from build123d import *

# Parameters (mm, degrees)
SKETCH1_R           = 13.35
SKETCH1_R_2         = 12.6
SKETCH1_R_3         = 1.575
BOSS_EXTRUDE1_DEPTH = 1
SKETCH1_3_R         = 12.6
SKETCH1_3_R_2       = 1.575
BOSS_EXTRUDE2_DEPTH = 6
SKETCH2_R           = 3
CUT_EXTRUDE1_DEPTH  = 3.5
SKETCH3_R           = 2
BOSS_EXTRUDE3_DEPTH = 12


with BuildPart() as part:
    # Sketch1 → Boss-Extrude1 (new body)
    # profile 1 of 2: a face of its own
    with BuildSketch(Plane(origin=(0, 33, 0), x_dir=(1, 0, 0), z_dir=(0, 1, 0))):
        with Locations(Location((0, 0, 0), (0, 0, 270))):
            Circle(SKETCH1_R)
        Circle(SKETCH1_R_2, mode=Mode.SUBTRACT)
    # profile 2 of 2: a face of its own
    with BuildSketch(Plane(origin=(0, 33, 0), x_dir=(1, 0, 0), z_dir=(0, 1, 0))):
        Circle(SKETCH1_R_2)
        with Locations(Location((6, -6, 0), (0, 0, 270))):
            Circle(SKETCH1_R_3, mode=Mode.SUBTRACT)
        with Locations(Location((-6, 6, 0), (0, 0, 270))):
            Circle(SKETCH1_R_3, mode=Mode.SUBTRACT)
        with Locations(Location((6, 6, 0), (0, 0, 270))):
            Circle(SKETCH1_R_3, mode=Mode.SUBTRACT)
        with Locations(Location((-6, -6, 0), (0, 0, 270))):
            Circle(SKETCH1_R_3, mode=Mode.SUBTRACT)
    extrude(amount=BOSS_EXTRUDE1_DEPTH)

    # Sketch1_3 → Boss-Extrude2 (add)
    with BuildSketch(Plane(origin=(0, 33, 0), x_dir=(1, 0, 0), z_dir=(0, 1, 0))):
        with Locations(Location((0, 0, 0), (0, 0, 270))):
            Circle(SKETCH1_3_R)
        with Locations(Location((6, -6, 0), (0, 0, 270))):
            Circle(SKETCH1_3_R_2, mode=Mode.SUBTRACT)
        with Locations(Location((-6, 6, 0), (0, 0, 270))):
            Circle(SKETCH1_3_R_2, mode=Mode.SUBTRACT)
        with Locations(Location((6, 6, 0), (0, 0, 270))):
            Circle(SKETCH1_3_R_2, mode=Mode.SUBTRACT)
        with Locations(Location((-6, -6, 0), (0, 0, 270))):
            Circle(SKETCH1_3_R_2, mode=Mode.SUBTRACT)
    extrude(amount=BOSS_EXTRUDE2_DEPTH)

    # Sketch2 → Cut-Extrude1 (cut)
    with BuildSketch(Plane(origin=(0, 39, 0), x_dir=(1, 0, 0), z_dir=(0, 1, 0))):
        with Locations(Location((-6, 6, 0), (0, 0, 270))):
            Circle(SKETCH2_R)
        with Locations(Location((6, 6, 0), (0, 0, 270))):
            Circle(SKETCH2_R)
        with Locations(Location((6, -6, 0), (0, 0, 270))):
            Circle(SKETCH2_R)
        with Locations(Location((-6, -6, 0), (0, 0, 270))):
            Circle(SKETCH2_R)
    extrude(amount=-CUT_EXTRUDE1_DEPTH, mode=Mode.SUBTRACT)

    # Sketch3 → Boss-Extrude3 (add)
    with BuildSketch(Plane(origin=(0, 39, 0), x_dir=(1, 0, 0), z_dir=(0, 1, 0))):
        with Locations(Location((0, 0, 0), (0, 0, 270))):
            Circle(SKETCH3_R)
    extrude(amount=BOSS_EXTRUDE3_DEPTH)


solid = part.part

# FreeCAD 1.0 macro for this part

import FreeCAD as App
import Part
import Sketcher

doc = App.newDocument("Part")
params = doc.addObject("Spreadsheet::Sheet", "Params")
for row, (alias, value) in enumerate([
    ("sketch1_diameter", "26.7 mm"),
    ("sketch1_diameter2", "3.15 mm"),
    ("pad1_length", "1 mm"),
    ("sketch2_diameter", "25.2 mm"),
    ("sketch2_diameter2", "3.15 mm"),
    ("pad2_length", "6 mm"),
    ("sketch3_diameter", "6 mm"),
    ("pocket1_length", "3.5 mm"),
    ("sketch4_diameter", "4 mm"),
    ("pad3_length", "12 mm"),
], start=1):
    params.set(f"A{row}", alias)
    params.set(f"B{row}", "=" + value)
    params.setAlias(f"B{row}", alias)

body = doc.addObject("PartDesign::Body", "Body")

# Sketch on XZ plane
sketch1 = body.newObject("Sketcher::SketchObject", "Sketch")
sketch1.AttachmentSupport = (doc.getObject("XZ_Plane"), [""])
sketch1.MapMode = "FlatFace"
sketch1.AttachmentOffset = App.Placement(App.Vector(0, 0, -33), App.Rotation())
sketch1.addGeometry(Part.Circle(App.Vector(0, 0, 0), App.Vector(0, 0, 1), 13.35), False)
sketch1.addGeometry(Part.Circle(App.Vector(6, -6, 0), App.Vector(0, 0, 1), 1.575), False)
sketch1.addGeometry(Part.Circle(App.Vector(-6, 6, 0), App.Vector(0, 0, 1), 1.575), False)
sketch1.addGeometry(Part.Circle(App.Vector(6, 6, 0), App.Vector(0, 0, 1), 1.575), False)
sketch1.addGeometry(Part.Circle(App.Vector(-6, -6, 0), App.Vector(0, 0, 1), 1.575), False)
sketch1.addConstraint(Sketcher.Constraint("Coincident", 0, 3, -1, 1))
sketch1.addConstraint(Sketcher.Constraint("Equal", 1, 2))
sketch1.addConstraint(Sketcher.Constraint("Equal", 2, 3))
sketch1.addConstraint(Sketcher.Constraint("Equal", 3, 4))
sketch1.addConstraint(Sketcher.Constraint("Symmetric", 1, 3, 2, 3, -1, 1))
sketch1.addConstraint(Sketcher.Constraint("Symmetric", 3, 3, 4, 3, -1, 1))
sketch1.addConstraint(Sketcher.Constraint("Symmetric", 2, 3, 3, 3, -2))
sketch1.addConstraint(Sketcher.Constraint("Diameter", 0, 26.7))
sketch1.addConstraint(Sketcher.Constraint("Diameter", 1, 3.15))
sketch1.addConstraint(Sketcher.Constraint("DistanceX", -1, 1, 1, 3, 6.0))
sketch1.addConstraint(Sketcher.Constraint("DistanceY", 1, 3, -1, 1, 6.0))
sketch1.setExpression("Constraints[7]", "Params.sketch1_diameter")
sketch1.setExpression("Constraints[8]", "Params.sketch1_diameter2")
pad1 = body.newObject("PartDesign::Pad", "Pad")
pad1.Profile = sketch1
pad1.setExpression("Length", "Params.pad1_length")
pad1.Reversed = True

# Sketch on XZ plane
sketch2 = body.newObject("Sketcher::SketchObject", "Sketch001")
sketch2.AttachmentSupport = (doc.getObject("XZ_Plane"), [""])
sketch2.MapMode = "FlatFace"
sketch2.AttachmentOffset = App.Placement(App.Vector(0, 0, -33), App.Rotation())
sketch2.addGeometry(Part.Circle(App.Vector(0, 0, 0), App.Vector(0, 0, 1), 12.6), False)
sketch2.addGeometry(Part.Circle(App.Vector(-6, -6, 0), App.Vector(0, 0, 1), 1.575), False)
sketch2.addGeometry(Part.Circle(App.Vector(-6, 6, 0), App.Vector(0, 0, 1), 1.575), False)
sketch2.addGeometry(Part.Circle(App.Vector(6, -6, 0), App.Vector(0, 0, 1), 1.575), False)
sketch2.addGeometry(Part.Circle(App.Vector(6, 6, 0), App.Vector(0, 0, 1), 1.575), False)
sketch2.addConstraint(Sketcher.Constraint("Coincident", 0, 3, -1, 1))
sketch2.addConstraint(Sketcher.Constraint("Equal", 1, 2))
sketch2.addConstraint(Sketcher.Constraint("Equal", 2, 3))
sketch2.addConstraint(Sketcher.Constraint("Equal", 3, 4))
sketch2.addConstraint(Sketcher.Constraint("Symmetric", 2, 3, 3, 3, -1, 1))
sketch2.addConstraint(Sketcher.Constraint("Symmetric", 1, 3, 4, 3, -1, 1))
sketch2.addConstraint(Sketcher.Constraint("Symmetric", 1, 3, 3, 3, -2))
sketch2.addConstraint(Sketcher.Constraint("Diameter", 0, 25.2))
sketch2.addConstraint(Sketcher.Constraint("Diameter", 1, 3.15))
sketch2.addConstraint(Sketcher.Constraint("DistanceX", 1, 3, -1, 1, 6.0))
sketch2.addConstraint(Sketcher.Constraint("DistanceY", 1, 3, -1, 1, 6.0))
sketch2.setExpression("Constraints[7]", "Params.sketch2_diameter")
sketch2.setExpression("Constraints[8]", "Params.sketch2_diameter2")
pad2 = body.newObject("PartDesign::Pad", "Pad001")
pad2.Profile = sketch2
pad2.setExpression("Length", "Params.pad2_length")
pad2.Reversed = True

# Sketch on XZ plane
sketch3 = body.newObject("Sketcher::SketchObject", "Sketch002")
sketch3.AttachmentSupport = (doc.getObject("XZ_Plane"), [""])
sketch3.MapMode = "FlatFace"
sketch3.AttachmentOffset = App.Placement(App.Vector(0, 0, -39), App.Rotation())
sketch3.addGeometry(Part.Circle(App.Vector(-6, -6, 0), App.Vector(0, 0, 1), 3), False)
sketch3.addGeometry(Part.Circle(App.Vector(6, -6, 0), App.Vector(0, 0, 1), 3), False)
sketch3.addGeometry(Part.Circle(App.Vector(6, 6, 0), App.Vector(0, 0, 1), 3), False)
sketch3.addGeometry(Part.Circle(App.Vector(-6, 6, 0), App.Vector(0, 0, 1), 3), False)
sketch3.addConstraint(Sketcher.Constraint("Equal", 0, 1))
sketch3.addConstraint(Sketcher.Constraint("Equal", 1, 2))
sketch3.addConstraint(Sketcher.Constraint("Equal", 2, 3))
sketch3.addConstraint(Sketcher.Constraint("Symmetric", 0, 3, 2, 3, -1, 1))
sketch3.addConstraint(Sketcher.Constraint("Symmetric", 1, 3, 3, 3, -1, 1))
sketch3.addConstraint(Sketcher.Constraint("Symmetric", 0, 3, 1, 3, -2))
sketch3.addConstraint(Sketcher.Constraint("Diameter", 0, 6.0))
sketch3.addConstraint(Sketcher.Constraint("DistanceX", 0, 3, -1, 1, 6.0))
sketch3.addConstraint(Sketcher.Constraint("DistanceY", 0, 3, -1, 1, 6.0))
sketch3.setExpression("Constraints[6]", "Params.sketch3_diameter")
pocket1 = body.newObject("PartDesign::Pocket", "Pocket")
pocket1.Profile = sketch3
pocket1.setExpression("Length", "Params.pocket1_length")
pocket1.Reversed = True

# Sketch on XZ plane
sketch4 = body.newObject("Sketcher::SketchObject", "Sketch003")
sketch4.AttachmentSupport = (doc.getObject("XZ_Plane"), [""])
sketch4.MapMode = "FlatFace"
sketch4.AttachmentOffset = App.Placement(App.Vector(0, 0, -39), App.Rotation())
sketch4.addGeometry(Part.Circle(App.Vector(0, 0, 0), App.Vector(0, 0, 1), 2), False)
sketch4.addConstraint(Sketcher.Constraint("Coincident", 0, 3, -1, 1))
sketch4.addConstraint(Sketcher.Constraint("Diameter", 0, 4.0))
sketch4.setExpression("Constraints[1]", "Params.sketch4_diameter")
pad3 = body.newObject("PartDesign::Pad", "Pad002")
pad3.Profile = sketch4
pad3.setExpression("Length", "Params.pad3_length")
pad3.Reversed = True

doc.recompute()
